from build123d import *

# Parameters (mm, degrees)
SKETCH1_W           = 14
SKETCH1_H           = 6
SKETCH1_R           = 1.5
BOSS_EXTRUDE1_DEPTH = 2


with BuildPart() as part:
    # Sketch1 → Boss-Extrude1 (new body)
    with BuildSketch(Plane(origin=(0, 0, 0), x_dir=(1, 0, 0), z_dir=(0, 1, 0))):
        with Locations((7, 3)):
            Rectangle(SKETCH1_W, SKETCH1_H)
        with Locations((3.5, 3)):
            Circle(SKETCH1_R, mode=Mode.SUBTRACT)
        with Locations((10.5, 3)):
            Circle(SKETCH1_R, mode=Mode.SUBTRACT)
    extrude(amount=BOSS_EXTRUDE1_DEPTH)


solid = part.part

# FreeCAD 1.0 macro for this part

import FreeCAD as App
import Part
import Sketcher

V = App.Vector


def add_polygon(sketch, points):
    """Adds a closed chain of lines whose ends are joined by coincident constraints."""
    first, n = sketch.GeometryCount, len(points)
    for a, b in zip(points, points[1:] + points[:1]):
        sketch.addGeometry(Part.LineSegment(App.Vector(*a, 0), App.Vector(*b, 0)), False)
    for i in range(n):
        sketch.addConstraint(Sketcher.Constraint("Coincident", first + i, 2, first + (i + 1) % n, 1))

doc = App.newDocument("Part")
params = doc.addObject("Spreadsheet::Sheet", "Params")
for row, (alias, value) in enumerate([
    ("sketch1_diameter", "3 mm"),
    ("sketch1_width", "14 mm"),
    ("sketch1_height", "6 mm"),
    ("pad1_length", "2 mm"),
], start=1):
    params.set(f"A{row}", alias)
    params.set(f"B{row}", "=" + value)
    params.setAlias(f"B{row}", alias)

body = doc.addObject("PartDesign::Body", "Body")

sketch1 = doc.addObject("Sketcher::SketchObject", "Sketch")
body.addObject(sketch1)
sketch1.AttachmentSupport = (doc.XZ_Plane, [""])
sketch1.MapMode = "FlatFace"
add_polygon(sketch1, [(0, -6), (0, 0), (14, 0), (14, -6)])
sketch1.addGeometry(Part.Circle(V(3.5, -3, 0), V(0, 0, 1), 1.5), False)
sketch1.addGeometry(Part.Circle(V(10.5, -3, 0), V(0, 0, 1), 1.5), False)
sketch1.addConstraint([
    Sketcher.Constraint("Vertical", 0),
    Sketcher.Constraint("Horizontal", 1),
    Sketcher.Constraint("Vertical", 2),
    Sketcher.Constraint("Horizontal", 3),
    Sketcher.Constraint("Coincident", 0, 2, -1, 1),
    Sketcher.Constraint("Equal", 4, 5),
    Sketcher.Constraint("Horizontal", 4, 3, 5, 3),
    Sketcher.Constraint("Diameter", 4, 3.0),
    Sketcher.Constraint("DistanceX", 1, 1, 1, 2, 14.0),
    Sketcher.Constraint("DistanceY", 0, 1, 0, 2, 6.0),
    Sketcher.Constraint("DistanceY", 4, 3, -1, 1, 3.0),
    Sketcher.Constraint("DistanceX", 4, 3, 5, 3, 7.0),
    Sketcher.Constraint("DistanceX", -1, 1, 4, 3, 3.5),
])
sketch1.setExpression("Constraints[11]", "Params.sketch1_diameter")
sketch1.setExpression("Constraints[12]", "Params.sketch1_width")
sketch1.setExpression("Constraints[13]", "Params.sketch1_height")
pad1 = doc.addObject("PartDesign::Pad", "Pad")
body.addObject(pad1)
pad1.Profile = sketch1
pad1.setExpression("Length", "Params.pad1_length")
pad1.Reversed = True

doc.recompute()
